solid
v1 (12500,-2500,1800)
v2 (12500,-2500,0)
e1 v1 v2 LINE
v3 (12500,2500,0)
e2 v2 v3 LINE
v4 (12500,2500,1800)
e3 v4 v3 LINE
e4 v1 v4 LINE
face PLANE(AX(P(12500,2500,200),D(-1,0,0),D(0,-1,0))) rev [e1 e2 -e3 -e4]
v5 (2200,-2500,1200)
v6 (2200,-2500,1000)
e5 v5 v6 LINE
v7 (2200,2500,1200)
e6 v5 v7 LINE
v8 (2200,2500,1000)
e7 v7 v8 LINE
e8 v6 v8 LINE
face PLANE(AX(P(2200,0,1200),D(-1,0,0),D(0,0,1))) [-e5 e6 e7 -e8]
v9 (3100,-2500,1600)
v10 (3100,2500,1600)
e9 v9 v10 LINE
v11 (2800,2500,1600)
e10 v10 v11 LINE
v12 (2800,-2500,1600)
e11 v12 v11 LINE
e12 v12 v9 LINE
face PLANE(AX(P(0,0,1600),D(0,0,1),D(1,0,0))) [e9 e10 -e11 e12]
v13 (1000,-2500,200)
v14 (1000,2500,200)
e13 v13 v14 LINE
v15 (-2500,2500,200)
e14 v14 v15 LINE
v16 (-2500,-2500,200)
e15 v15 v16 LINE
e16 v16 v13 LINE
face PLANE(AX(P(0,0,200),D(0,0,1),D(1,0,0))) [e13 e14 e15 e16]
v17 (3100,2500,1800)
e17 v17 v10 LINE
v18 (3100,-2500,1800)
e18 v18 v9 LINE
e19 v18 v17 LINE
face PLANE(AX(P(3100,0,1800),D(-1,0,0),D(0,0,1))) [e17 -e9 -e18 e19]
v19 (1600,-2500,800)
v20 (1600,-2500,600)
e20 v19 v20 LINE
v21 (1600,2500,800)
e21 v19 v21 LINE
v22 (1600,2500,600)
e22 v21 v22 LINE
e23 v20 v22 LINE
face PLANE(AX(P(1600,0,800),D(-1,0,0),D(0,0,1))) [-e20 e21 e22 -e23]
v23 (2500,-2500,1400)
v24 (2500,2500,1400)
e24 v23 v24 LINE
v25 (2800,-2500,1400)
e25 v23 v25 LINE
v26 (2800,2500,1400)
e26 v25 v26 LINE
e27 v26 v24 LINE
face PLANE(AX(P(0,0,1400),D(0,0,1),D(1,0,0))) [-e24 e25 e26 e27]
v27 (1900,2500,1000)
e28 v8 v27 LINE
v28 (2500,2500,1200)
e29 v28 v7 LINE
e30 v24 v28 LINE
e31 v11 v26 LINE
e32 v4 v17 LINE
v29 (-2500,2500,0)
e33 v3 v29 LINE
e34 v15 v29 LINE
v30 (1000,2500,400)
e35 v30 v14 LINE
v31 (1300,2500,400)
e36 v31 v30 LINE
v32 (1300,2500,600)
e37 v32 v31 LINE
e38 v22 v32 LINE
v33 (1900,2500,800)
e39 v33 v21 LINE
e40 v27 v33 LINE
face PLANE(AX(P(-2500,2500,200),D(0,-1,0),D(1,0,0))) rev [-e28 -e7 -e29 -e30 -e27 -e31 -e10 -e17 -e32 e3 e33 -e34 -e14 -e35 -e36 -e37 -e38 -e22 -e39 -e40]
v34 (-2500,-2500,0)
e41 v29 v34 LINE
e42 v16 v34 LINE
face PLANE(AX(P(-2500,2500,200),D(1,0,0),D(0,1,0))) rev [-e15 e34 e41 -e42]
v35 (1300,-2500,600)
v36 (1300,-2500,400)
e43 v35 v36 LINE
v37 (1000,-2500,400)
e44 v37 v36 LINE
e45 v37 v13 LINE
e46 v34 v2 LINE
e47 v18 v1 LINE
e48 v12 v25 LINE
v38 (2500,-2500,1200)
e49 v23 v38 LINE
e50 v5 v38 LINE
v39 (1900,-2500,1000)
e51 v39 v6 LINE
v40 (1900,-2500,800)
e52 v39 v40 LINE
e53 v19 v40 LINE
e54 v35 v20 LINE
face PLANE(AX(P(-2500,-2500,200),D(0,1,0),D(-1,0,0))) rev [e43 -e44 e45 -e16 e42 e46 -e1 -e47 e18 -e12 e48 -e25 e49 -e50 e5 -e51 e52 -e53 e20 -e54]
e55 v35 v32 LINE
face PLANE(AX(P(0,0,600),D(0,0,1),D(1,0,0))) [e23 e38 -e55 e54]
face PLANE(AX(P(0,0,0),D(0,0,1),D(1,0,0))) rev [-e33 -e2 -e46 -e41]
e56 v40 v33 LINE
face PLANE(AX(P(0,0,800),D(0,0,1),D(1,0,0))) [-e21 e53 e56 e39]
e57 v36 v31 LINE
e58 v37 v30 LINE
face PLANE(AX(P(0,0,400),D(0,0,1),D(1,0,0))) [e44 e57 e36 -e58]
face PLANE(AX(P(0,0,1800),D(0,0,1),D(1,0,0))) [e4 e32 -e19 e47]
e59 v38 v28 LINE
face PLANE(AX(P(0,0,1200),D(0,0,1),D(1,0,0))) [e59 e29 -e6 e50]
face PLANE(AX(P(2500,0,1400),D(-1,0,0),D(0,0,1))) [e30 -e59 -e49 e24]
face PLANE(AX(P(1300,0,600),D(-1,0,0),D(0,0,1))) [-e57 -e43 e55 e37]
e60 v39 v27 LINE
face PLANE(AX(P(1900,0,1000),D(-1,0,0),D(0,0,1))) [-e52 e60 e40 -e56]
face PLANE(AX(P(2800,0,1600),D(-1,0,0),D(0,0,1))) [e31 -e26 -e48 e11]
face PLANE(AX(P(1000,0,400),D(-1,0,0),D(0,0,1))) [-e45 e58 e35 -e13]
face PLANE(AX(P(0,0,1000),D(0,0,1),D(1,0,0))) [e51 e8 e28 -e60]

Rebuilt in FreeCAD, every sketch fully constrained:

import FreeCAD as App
import Part
import Sketcher

V = App.Vector
Q = App.Units.Quantity


def add_polygon(sketch, points):
    """Adds a closed chain of lines whose ends are joined by coincident constraints."""
    first, n = sketch.GeometryCount, len(points)
    for a, b in zip(points, points[1:] + points[:1]):
        sketch.addGeometry(Part.LineSegment(App.Vector(*a, 0), App.Vector(*b, 0)), False)
    for i in range(n):
        sketch.addConstraint(Sketcher.Constraint("Coincident", first + i, 2, first + (i + 1) % n, 1))

doc = App.newDocument("Part")
body = doc.addObject("PartDesign::Body", "Body")

# Sketch on XY plane
sketch1 = body.newObject("Sketcher::SketchObject", "Sketch")
sketch1.AttachmentSupport = (doc.getObject("XY_Plane"), [""])
sketch1.MapMode = "FlatFace"
add_polygon(sketch1, [(-2500, 2500), (-2500, -2500), (12500, -2500), (12500, 2500)])  # lines 0-3
sketch1.addConstraint(Sketcher.Constraint("Vertical", 0))
sketch1.addConstraint(Sketcher.Constraint("Horizontal", 1))
sketch1.addConstraint(Sketcher.Constraint("Vertical", 2))
sketch1.addConstraint(Sketcher.Constraint("Horizontal", 3))
sketch1.addConstraint(Sketcher.Constraint("DistanceX", 1, 1, 1, 2, Q("15000 mm")))
sketch1.addConstraint(Sketcher.Constraint("DistanceY", 0, 2, 0, 1, Q("5000 mm")))
sketch1.addConstraint(Sketcher.Constraint("DistanceX", 0, 2, -1, 1, Q("2500 mm")))
sketch1.addConstraint(Sketcher.Constraint("DistanceY", 0, 2, -1, 1, Q("2500 mm")))
pad1 = body.newObject("PartDesign::Pad", "Pad")
pad1.Profile = sketch1
pad1.Length = 200

# Sketch on XY plane
sketch2 = body.newObject("Sketcher::SketchObject", "Sketch001")
sketch2.AttachmentSupport = (doc.getObject("XY_Plane"), [""])
sketch2.MapMode = "FlatFace"
sketch2.AttachmentOffset = App.Placement(V(0, 0, 200), App.Rotation())
add_polygon(sketch2, [(1000, 2500), (1000, -2500), (1300, -2500), (1300, 2500)])  # lines 0-3
sketch2.addConstraint(Sketcher.Constraint("Vertical", 0))
sketch2.addConstraint(Sketcher.Constraint("Horizontal", 1))
sketch2.addConstraint(Sketcher.Constraint("Vertical", 2))
sketch2.addConstraint(Sketcher.Constraint("Horizontal", 3))
sketch2.addConstraint(Sketcher.Constraint("DistanceX", 1, 1, 1, 2, Q("300 mm")))
sketch2.addConstraint(Sketcher.Constraint("DistanceY", 0, 2, 0, 1, Q("5000 mm")))
sketch2.addConstraint(Sketcher.Constraint("DistanceX", -1, 1, 0, 2, Q("1000 mm")))
sketch2.addConstraint(Sketcher.Constraint("DistanceY", 0, 2, -1, 1, Q("2500 mm")))
pad2 = body.newObject("PartDesign::Pad", "Pad001")
pad2.Profile = sketch2
pad2.Length = 200

# Sketch on XY plane
sketch3 = body.newObject("Sketcher::SketchObject", "Sketch002")
sketch3.AttachmentSupport = (doc.getObject("XY_Plane"), [""])
sketch3.MapMode = "FlatFace"
sketch3.AttachmentOffset = App.Placement(V(0, 0, 200), App.Rotation())
add_polygon(sketch3, [(1300, 2500), (1300, -2500), (1600, -2500), (1600, 2500)])  # lines 0-3
sketch3.addConstraint(Sketcher.Constraint("Vertical", 0))
sketch3.addConstraint(Sketcher.Constraint("Horizontal", 1))
sketch3.addConstraint(Sketcher.Constraint("Vertical", 2))
sketch3.addConstraint(Sketcher.Constraint("Horizontal", 3))
sketch3.addConstraint(Sketcher.Constraint("DistanceX", 1, 1, 1, 2, Q("300 mm")))
sketch3.addConstraint(Sketcher.Constraint("DistanceY", 0, 2, 0, 1, Q("5000 mm")))
sketch3.addConstraint(Sketcher.Constraint("DistanceX", -1, 1, 0, 2, Q("1300 mm")))
sketch3.addConstraint(Sketcher.Constraint("DistanceY", 0, 2, -1, 1, Q("2500 mm")))
pad3 = body.newObject("PartDesign::Pad", "Pad002")
pad3.Profile = sketch3
pad3.Length = 400

# Sketch on XY plane
sketch4 = body.newObject("Sketcher::SketchObject", "Sketch003")
sketch4.AttachmentSupport = (doc.getObject("XY_Plane"), [""])
sketch4.MapMode = "FlatFace"
sketch4.AttachmentOffset = App.Placement(V(0, 0, 200), App.Rotation())
add_polygon(sketch4, [(1600, 2500), (1600, -2500), (1900, -2500), (1900, 2500)])  # lines 0-3
sketch4.addConstraint(Sketcher.Constraint("Vertical", 0))
sketch4.addConstraint(Sketcher.Constraint("Horizontal", 1))
sketch4.addConstraint(Sketcher.Constraint("Vertical", 2))
sketch4.addConstraint(Sketcher.Constraint("Horizontal", 3))
sketch4.addConstraint(Sketcher.Constraint("DistanceX", 1, 1, 1, 2, Q("300 mm")))
sketch4.addConstraint(Sketcher.Constraint("DistanceY", 0, 2, 0, 1, Q("5000 mm")))
sketch4.addConstraint(Sketcher.Constraint("DistanceX", -1, 1, 0, 2, Q("1600 mm")))
sketch4.addConstraint(Sketcher.Constraint("DistanceY", 0, 2, -1, 1, Q("2500 mm")))
pad4 = body.newObject("PartDesign::Pad", "Pad003")
pad4.Profile = sketch4
pad4.Length = 600

# Sketch on XY plane
sketch5 = body.newObject("Sketcher::SketchObject", "Sketch004")
sketch5.AttachmentSupport = (doc.getObject("XY_Plane"), [""])
sketch5.MapMode = "FlatFace"
sketch5.AttachmentOffset = App.Placement(V(0, 0, 200), App.Rotation())
add_polygon(sketch5, [(1900, 2500), (1900, -2500), (2200, -2500), (2200, 2500)])  # lines 0-3
sketch5.addConstraint(Sketcher.Constraint("Vertical", 0))
sketch5.addConstraint(Sketcher.Constraint("Horizontal", 1))
sketch5.addConstraint(Sketcher.Constraint("Vertical", 2))
sketch5.addConstraint(Sketcher.Constraint("Horizontal", 3))
sketch5.addConstraint(Sketcher.Constraint("DistanceX", 1, 1, 1, 2, Q("300 mm")))
sketch5.addConstraint(Sketcher.Constraint("DistanceY", 0, 2, 0, 1, Q("5000 mm")))
sketch5.addConstraint(Sketcher.Constraint("DistanceX", -1, 1, 0, 2, Q("1900 mm")))
sketch5.addConstraint(Sketcher.Constraint("DistanceY", 0, 2, -1, 1, Q("2500 mm")))
pad5 = body.newObject("PartDesign::Pad", "Pad004")
pad5.Profile = sketch5
pad5.Length = 800

# Sketch on XY plane
sketch6 = body.newObject("Sketcher::SketchObject", "Sketch005")
sketch6.AttachmentSupport = (doc.getObject("XY_Plane"), [""])
sketch6.MapMode = "FlatFace"
sketch6.AttachmentOffset = App.Placement(V(0, 0, 200), App.Rotation())
add_polygon(sketch6, [(2200, 2500), (2200, -2500), (2500, -2500), (2500, 2500)])  # lines 0-3
sketch6.addConstraint(Sketcher.Constraint("Vertical", 0))
sketch6.addConstraint(Sketcher.Constraint("Horizontal", 1))
sketch6.addConstraint(Sketcher.Constraint("Vertical", 2))
sketch6.addConstraint(Sketcher.Constraint("Horizontal", 3))
sketch6.addConstraint(Sketcher.Constraint("DistanceX", 1, 1, 1, 2, Q("300 mm")))
sketch6.addConstraint(Sketcher.Constraint("DistanceY", 0, 2, 0, 1, Q("5000 mm")))
sketch6.addConstraint(Sketcher.Constraint("DistanceX", -1, 1, 0, 2, Q("2200 mm")))
sketch6.addConstraint(Sketcher.Constraint("DistanceY", 0, 2, -1, 1, Q("2500 mm")))
pad6 = body.newObject("PartDesign::Pad", "Pad005")
pad6.Profile = sketch6
pad6.Length = 1000

# Sketch on XY plane
sketch7 = body.newObject("Sketcher::SketchObject", "Sketch006")
sketch7.AttachmentSupport = (doc.getObject("XY_Plane"), [""])
sketch7.MapMode = "FlatFace"
sketch7.AttachmentOffset = App.Placement(V(0, 0, 200), App.Rotation())
add_polygon(sketch7, [(2500, 2500), (2500, -2500), (2800, -2500), (2800, 2500)])  # lines 0-3
sketch7.addConstraint(Sketcher.Constraint("Vertical", 0))
sketch7.addConstraint(Sketcher.Constraint("Horizontal", 1))
sketch7.addConstraint(Sketcher.Constraint("Vertical", 2))
sketch7.addConstraint(Sketcher.Constraint("Horizontal", 3))
sketch7.addConstraint(Sketcher.Constraint("DistanceX", 1, 1, 1, 2, Q("300 mm")))
sketch7.addConstraint(Sketcher.Constraint("DistanceY", 0, 2, 0, 1, Q("5000 mm")))
sketch7.addConstraint(Sketcher.Constraint("DistanceX", -1, 1, 0, 2, Q("2500 mm")))
sketch7.addConstraint(Sketcher.Constraint("DistanceY", 0, 2, -1, 1, Q("2500 mm")))
pad7 = body.newObject("PartDesign::Pad", "Pad006")
pad7.Profile = sketch7
pad7.Length = 1200

# Sketch on XY plane
sketch8 = body.newObject("Sketcher::SketchObject", "Sketch007")
sketch8.AttachmentSupport = (doc.getObject("XY_Plane"), [""])
sketch8.MapMode = "FlatFace"
sketch8.AttachmentOffset = App.Placement(V(0, 0, 200), App.Rotation())
add_polygon(sketch8, [(2800, 2500), (2800, -2500), (3100, -2500), (3100, 2500)])  # lines 0-3
sketch8.addConstraint(Sketcher.Constraint("Vertical", 0))
sketch8.addConstraint(Sketcher.Constraint("Horizontal", 1))
sketch8.addConstraint(Sketcher.Constraint("Vertical", 2))
sketch8.addConstraint(Sketcher.Constraint("Horizontal", 3))
sketch8.addConstraint(Sketcher.Constraint("DistanceX", 1, 1, 1, 2, Q("300 mm")))
sketch8.addConstraint(Sketcher.Constraint("DistanceY", 0, 2, 0, 1, Q("5000 mm")))
sketch8.addConstraint(Sketcher.Constraint("DistanceX", -1, 1, 0, 2, Q("2800 mm")))
sketch8.addConstraint(Sketcher.Constraint("DistanceY", 0, 2, -1, 1, Q("2500 mm")))
pad8 = body.newObject("PartDesign::Pad", "Pad007")
pad8.Profile = sketch8
pad8.Length = 1400

# Sketch on XY plane
sketch9 = body.newObject("Sketcher::SketchObject", "Sketch008")
sketch9.AttachmentSupport = (doc.getObject("XY_Plane"), [""])
sketch9.MapMode = "FlatFace"
sketch9.AttachmentOffset = App.Placement(V(0, 0, 200), App.Rotation())
add_polygon(sketch9, [(3100, 2500), (3100, -2500), (3400, -2500), (3400, 2500)])  # lines 0-3
sketch9.addConstraint(Sketcher.Constraint("Vertical", 0))
sketch9.addConstraint(Sketcher.Constraint("Horizontal", 1))
sketch9.addConstraint(Sketcher.Constraint("Vertical", 2))
sketch9.addConstraint(Sketcher.Constraint("Horizontal", 3))
sketch9.addConstraint(Sketcher.Constraint("DistanceX", 1, 1, 1, 2, Q("300 mm")))
sketch9.addConstraint(Sketcher.Constraint("DistanceY", 0, 2, 0, 1, Q("5000 mm")))
sketch9.addConstraint(Sketcher.Constraint("DistanceX", -1, 1, 0, 2, Q("3100 mm")))
sketch9.addConstraint(Sketcher.Constraint("DistanceY", 0, 2, -1, 1, Q("2500 mm")))
pad9 = body.newObject("PartDesign::Pad", "Pad008")
pad9.Profile = sketch9
pad9.Length = 1600

# Sketch on XY plane
sketch10 = body.newObject("Sketcher::SketchObject", "Sketch009")
sketch10.AttachmentSupport = (doc.getObject("XY_Plane"), [""])
sketch10.MapMode = "FlatFace"
sketch10.AttachmentOffset = App.Placement(V(0, 0, 200), App.Rotation())
add_polygon(sketch10, [(3400, 2500), (3400, -2500), (12500, -2500), (12500, 2500)])  # lines 0-3
sketch10.addConstraint(Sketcher.Constraint("Vertical", 0))
sketch10.addConstraint(Sketcher.Constraint("Horizontal", 1))
sketch10.addConstraint(Sketcher.Constraint("Vertical", 2))
sketch10.addConstraint(Sketcher.Constraint("Horizontal", 3))
sketch10.addConstraint(Sketcher.Constraint("DistanceX", 1, 1, 1, 2, Q("9100 mm")))
sketch10.addConstraint(Sketcher.Constraint("DistanceY", 0, 2, 0, 1, Q("5000 mm")))
sketch10.addConstraint(Sketcher.Constraint("DistanceX", -1, 1, 0, 2, Q("3400 mm")))
sketch10.addConstraint(Sketcher.Constraint("DistanceY", 0, 2, -1, 1, Q("2500 mm")))
pad10 = body.newObject("PartDesign::Pad", "Pad009")
pad10.Profile = sketch10
pad10.Length = 1600

doc.recompute()
